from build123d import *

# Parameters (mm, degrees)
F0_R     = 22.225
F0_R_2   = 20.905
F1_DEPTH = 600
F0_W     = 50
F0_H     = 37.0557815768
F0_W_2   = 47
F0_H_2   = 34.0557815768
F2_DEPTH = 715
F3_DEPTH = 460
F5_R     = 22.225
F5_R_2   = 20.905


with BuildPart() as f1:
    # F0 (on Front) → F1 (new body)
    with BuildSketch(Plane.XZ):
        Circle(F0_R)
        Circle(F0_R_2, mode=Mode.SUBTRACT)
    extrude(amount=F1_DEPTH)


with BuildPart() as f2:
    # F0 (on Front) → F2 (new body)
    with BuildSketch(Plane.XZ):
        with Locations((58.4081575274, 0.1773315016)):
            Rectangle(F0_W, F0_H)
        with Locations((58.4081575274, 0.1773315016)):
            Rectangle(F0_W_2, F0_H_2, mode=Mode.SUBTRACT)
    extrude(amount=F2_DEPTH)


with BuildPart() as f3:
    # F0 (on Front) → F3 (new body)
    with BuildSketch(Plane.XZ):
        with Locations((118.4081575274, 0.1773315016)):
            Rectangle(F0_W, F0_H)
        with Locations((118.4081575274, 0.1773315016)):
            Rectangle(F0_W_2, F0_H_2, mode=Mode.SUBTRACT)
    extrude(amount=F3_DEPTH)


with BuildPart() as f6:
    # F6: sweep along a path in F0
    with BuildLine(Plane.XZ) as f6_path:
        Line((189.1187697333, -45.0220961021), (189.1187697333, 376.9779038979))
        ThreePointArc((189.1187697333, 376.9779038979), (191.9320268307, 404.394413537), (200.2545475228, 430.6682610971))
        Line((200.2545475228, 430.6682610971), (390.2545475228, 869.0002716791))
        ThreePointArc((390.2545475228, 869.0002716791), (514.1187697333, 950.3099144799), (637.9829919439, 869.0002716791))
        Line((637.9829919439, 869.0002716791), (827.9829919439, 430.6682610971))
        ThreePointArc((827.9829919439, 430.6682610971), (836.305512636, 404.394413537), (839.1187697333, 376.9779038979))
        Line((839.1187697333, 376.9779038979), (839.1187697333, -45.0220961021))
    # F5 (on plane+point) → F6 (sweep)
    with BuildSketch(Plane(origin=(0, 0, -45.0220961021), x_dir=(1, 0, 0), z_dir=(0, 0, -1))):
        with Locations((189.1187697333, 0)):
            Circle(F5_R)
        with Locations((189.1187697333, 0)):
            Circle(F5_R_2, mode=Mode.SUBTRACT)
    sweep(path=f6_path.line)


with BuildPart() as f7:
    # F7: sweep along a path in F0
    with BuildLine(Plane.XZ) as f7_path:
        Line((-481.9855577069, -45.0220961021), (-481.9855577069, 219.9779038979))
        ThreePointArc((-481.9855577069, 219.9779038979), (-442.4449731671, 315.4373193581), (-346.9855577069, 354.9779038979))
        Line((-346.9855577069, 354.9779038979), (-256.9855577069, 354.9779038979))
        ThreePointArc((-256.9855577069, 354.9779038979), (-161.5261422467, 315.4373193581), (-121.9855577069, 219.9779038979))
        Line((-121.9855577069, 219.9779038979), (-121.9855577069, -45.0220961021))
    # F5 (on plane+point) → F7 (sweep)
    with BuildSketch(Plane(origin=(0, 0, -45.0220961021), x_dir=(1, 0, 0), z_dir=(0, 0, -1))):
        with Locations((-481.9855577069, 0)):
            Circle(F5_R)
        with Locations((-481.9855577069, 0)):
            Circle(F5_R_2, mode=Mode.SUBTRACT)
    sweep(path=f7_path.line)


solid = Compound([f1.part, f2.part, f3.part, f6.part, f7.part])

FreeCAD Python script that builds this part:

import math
import FreeCAD as App
import Part
import Sketcher
Q = App.Units.Quantity

doc = App.newDocument("Part")
body = doc.addObject("PartDesign::Body", "Body")

# Sketch on XZ plane
sketch1 = body.newObject("Sketcher::SketchObject", "Sketch")
sketch1.AttachmentSupport = (doc.getObject("XZ_Plane"), [""])
sketch1.MapMode = "FlatFace"
sketch1.addGeometry([
    Part.Circle(App.Vector(0, 0, 0), App.Vector(0, 0, 1), 22),
    Part.Circle(App.Vector(0, 0, 0), App.Vector(0, 0, 1), 21),
], False)
sketch1.addConstraint([
    Sketcher.Constraint("Coincident", 0, 3, -1, 1),
    Sketcher.Constraint("Coincident", 1, 3, -1, 1),
    Sketcher.Constraint("Diameter", 0, Q("44.45 mm")),
    Sketcher.Constraint("Diameter", 1, Q("41.81 mm")),
])
pad1 = body.newObject("PartDesign::Pad", "Pad")
pad1.Profile = sketch1
pad1.Length = 600
body2 = doc.addObject("PartDesign::Body", "Body001")

# Sketch on XZ plane
sketch2 = body2.newObject("Sketcher::SketchObject", "Sketch001")
sketch2.AttachmentSupport = (doc.getObject("XZ_Plane001"), [""])
sketch2.MapMode = "FlatFace"
sketch2.addGeometry([
    Part.LineSegment(App.Vector(33, 19, 0), App.Vector(33, -18, 0)),  # 0
    Part.LineSegment(App.Vector(33, -18, 0), App.Vector(83, -18, 0)),  # 1
    Part.LineSegment(App.Vector(83, -18, 0), App.Vector(83, 19, 0)),  # 2
    Part.LineSegment(App.Vector(83, 19, 0), App.Vector(33, 19, 0)),  # 3
    Part.LineSegment(App.Vector(82, -17, 0), App.Vector(35, -17, 0)),  # 4
    Part.LineSegment(App.Vector(35, -17, 0), App.Vector(35, 17, 0)),  # 5
    Part.LineSegment(App.Vector(35, 17, 0), App.Vector(82, 17, 0)),  # 6
    Part.LineSegment(App.Vector(82, 17, 0), App.Vector(82, -17, 0)),  # 7
], False)
sketch2.addConstraint([
    Sketcher.Constraint("Coincident", 0, 2, 1, 1),
    Sketcher.Constraint("Coincident", 1, 2, 2, 1),
    Sketcher.Constraint("Coincident", 2, 2, 3, 1),
    Sketcher.Constraint("Coincident", 3, 2, 0, 1),
    Sketcher.Constraint("Coincident", 4, 2, 5, 1),
    Sketcher.Constraint("Coincident", 5, 2, 6, 1),
    Sketcher.Constraint("Coincident", 6, 2, 7, 1),
    Sketcher.Constraint("Coincident", 7, 2, 4, 1),
    Sketcher.Constraint("Vertical", 0),
    Sketcher.Constraint("Horizontal", 1),
    Sketcher.Constraint("Vertical", 2),
    Sketcher.Constraint("Horizontal", 3),
    Sketcher.Constraint("Horizontal", 4),
    Sketcher.Constraint("Vertical", 5),
    Sketcher.Constraint("Horizontal", 6),
    Sketcher.Constraint("Vertical", 7),
    Sketcher.Constraint("DistanceX", 1, 1, 1, 2, Q("50 mm")),
    Sketcher.Constraint("DistanceX", 4, 2, 4, 1, Q("47 mm")),
    Sketcher.Constraint("DistanceX", 0, 2, 4, 2, Q("1.5 mm")),
    Sketcher.Constraint("DistanceY", 0, 2, 4, 2, Q("1.5 mm")),
    Sketcher.Constraint("DistanceY", 5, 2, 3, 2, Q("1.5 mm")),
    Sketcher.Constraint("DistanceY", 0, 2, 0, 1, Q("37.055782 mm")),
    Sketcher.Constraint("DistanceY", 0, 2, -1, 1, Q("18.350559 mm")),
    Sketcher.Constraint("DistanceX", -1, 1, 0, 2, Q("33.408158 mm")),
])
pad2 = body2.newObject("PartDesign::Pad", "Pad001")
pad2.Profile = sketch2
pad2.Length = 715
body3 = doc.addObject("PartDesign::Body", "Body002")

# Sketch on XZ plane
sketch3 = body3.newObject("Sketcher::SketchObject", "Sketch002")
sketch3.AttachmentSupport = (doc.getObject("XZ_Plane002"), [""])
sketch3.MapMode = "FlatFace"
sketch3.addGeometry([
    Part.LineSegment(App.Vector(93, 19, 0), App.Vector(93, -18, 0)),  # 0
    Part.LineSegment(App.Vector(93, -18, 0), App.Vector(143, -18, 0)),  # 1
    Part.LineSegment(App.Vector(143, -18, 0), App.Vector(143, 19, 0)),  # 2
    Part.LineSegment(App.Vector(143, 19, 0), App.Vector(93, 19, 0)),  # 3
    Part.LineSegment(App.Vector(142, -17, 0), App.Vector(95, -17, 0)),  # 4
    Part.LineSegment(App.Vector(95, -17, 0), App.Vector(95, 17, 0)),  # 5
    Part.LineSegment(App.Vector(95, 17, 0), App.Vector(142, 17, 0)),  # 6
    Part.LineSegment(App.Vector(142, 17, 0), App.Vector(142, -17, 0)),  # 7
], False)
sketch3.addConstraint([
    Sketcher.Constraint("Coincident", 0, 2, 1, 1),
    Sketcher.Constraint("Coincident", 1, 2, 2, 1),
    Sketcher.Constraint("Coincident", 2, 2, 3, 1),
    Sketcher.Constraint("Coincident", 3, 2, 0, 1),
    Sketcher.Constraint("Coincident", 4, 2, 5, 1),
    Sketcher.Constraint("Coincident", 5, 2, 6, 1),
    Sketcher.Constraint("Coincident", 6, 2, 7, 1),
    Sketcher.Constraint("Coincident", 7, 2, 4, 1),
    Sketcher.Constraint("Vertical", 0),
    Sketcher.Constraint("Horizontal", 1),
    Sketcher.Constraint("Vertical", 2),
    Sketcher.Constraint("Horizontal", 3),
    Sketcher.Constraint("Horizontal", 4),
    Sketcher.Constraint("Vertical", 5),
    Sketcher.Constraint("Horizontal", 6),
    Sketcher.Constraint("Vertical", 7),
    Sketcher.Constraint("DistanceX", 1, 1, 1, 2, Q("50 mm")),
    Sketcher.Constraint("DistanceX", 4, 2, 4, 1, Q("47 mm")),
    Sketcher.Constraint("DistanceX", 0, 2, 4, 2, Q("1.5 mm")),
    Sketcher.Constraint("DistanceY", 0, 2, 4, 2, Q("1.5 mm")),
    Sketcher.Constraint("DistanceY", 5, 2, 3, 2, Q("1.5 mm")),
    Sketcher.Constraint("DistanceY", 0, 2, 0, 1, Q("37.055782 mm")),
    Sketcher.Constraint("DistanceY", 0, 2, -1, 1, Q("18.350559 mm")),
    Sketcher.Constraint("DistanceX", -1, 1, 0, 2, Q("93.408158 mm")),
])
pad3 = body3.newObject("PartDesign::Pad", "Pad002")
pad3.Profile = sketch3
pad3.Length = 460
body4 = doc.addObject("PartDesign::Body", "Body003")

# Sketch on XY plane
sketch4 = body4.newObject("Sketcher::SketchObject", "Sketch003")
sketch4.AttachmentSupport = (doc.getObject("XY_Plane003"), [""])
sketch4.MapMode = "FlatFace"
sketch4.AttachmentOffset = App.Placement(App.Vector(0, 0, -45.022096), App.Rotation())
sketch4.addGeometry([
    Part.Circle(App.Vector(189, 0, 0), App.Vector(0, 0, 1), 22),
    Part.Circle(App.Vector(189, 0, 0), App.Vector(0, 0, 1), 21),
], False)
sketch4.addConstraint([
    Sketcher.Constraint("Coincident", 1, 3, 0, 3),
    Sketcher.Constraint("PointOnObject", 0, 3, -1),
    Sketcher.Constraint("Diameter", 0, Q("44.45 mm")),
    Sketcher.Constraint("Diameter", 1, Q("41.81 mm")),
    Sketcher.Constraint("DistanceX", -1, 1, 0, 3, Q("189.11877 mm")),
])

# Sketch on XZ plane
sketch5 = body4.newObject("Sketcher::SketchObject", "Sketch004")
sketch5.AttachmentSupport = (doc.getObject("XZ_Plane003"), [""])
sketch5.MapMode = "FlatFace"
sketch5.addGeometry([
    Part.LineSegment(App.Vector(189, -45, 0), App.Vector(189, 377, 0)),  # 0
    Part.ArcOfCircle(Part.Circle(App.Vector(324, 377, 0), App.Vector(0, 0, 1), 135), math.radians(157), math.radians(180)),  # 1
    Part.LineSegment(App.Vector(200, 431, 0), App.Vector(390, 869, 0)),  # 2
    Part.ArcOfCircle(Part.Circle(App.Vector(514, 815, 0), App.Vector(0, 0, 1), 135), math.radians(23), math.radians(157)),  # 3
    Part.LineSegment(App.Vector(638, 869, 0), App.Vector(828, 431, 0)),  # 4
    Part.ArcOfCircle(Part.Circle(App.Vector(704, 377, 0), App.Vector(0, 0, 1), 135), math.radians(0), math.radians(23)),  # 5
    Part.LineSegment(App.Vector(839, 377, 0), App.Vector(839, -45, 0)),  # 6
], False)
sketch5.addConstraint([
    Sketcher.Constraint("Tangent", 0, 2, 1, 2),
    Sketcher.Constraint("Tangent", 1, 1, 2, 1),
    Sketcher.Constraint("Tangent", 2, 2, 3, 2),
    Sketcher.Constraint("Tangent", 3, 1, 4, 1),
    Sketcher.Constraint("Tangent", 4, 2, 5, 2),
    Sketcher.Constraint("Tangent", 5, 1, 6, 1),
    Sketcher.Constraint("Vertical", 0),
    Sketcher.Constraint("Vertical", 6),
    Sketcher.Constraint("Equal", 1, 3),
    Sketcher.Constraint("Equal", 3, 5),
    Sketcher.Constraint("Horizontal", 1, 3, 5, 3),
    Sketcher.Constraint("Horizontal", 2, 2, 3, 1),
    Sketcher.Constraint("Horizontal", 0, 1, 6, 2),
    Sketcher.Constraint("Radius", 1, Q("135 mm")),
    Sketcher.Constraint("DistanceY", 0, 1, 0, 2, Q("422 mm")),
    Sketcher.Constraint("DistanceX", 1, 3, 3, 3, Q("190 mm")),
    Sketcher.Constraint("DistanceX", -1, 1, 1, 3, Q("324.11877 mm")),
    Sketcher.Constraint("DistanceY", -1, 1, 1, 1, Q("430.668261 mm")),
    Sketcher.Constraint("DistanceY", -1, 1, 2, 2, Q("869.000272 mm")),
])
doc.recompute()

additivepipe = body4.newObject("PartDesign::AdditivePipe", "AdditivePipe")
additivepipe.Profile = sketch4
additivepipe.Spine = (sketch5, ["Edge1", "Edge2", "Edge3", "Edge4", "Edge5", "Edge6", "Edge7"])
body5 = doc.addObject("PartDesign::Body", "Body004")

# Sketch on XY plane
sketch6 = body5.newObject("Sketcher::SketchObject", "Sketch005")
sketch6.AttachmentSupport = (doc.getObject("XY_Plane004"), [""])
sketch6.MapMode = "FlatFace"
sketch6.AttachmentOffset = App.Placement(App.Vector(0, 0, -45.022096), App.Rotation())
sketch6.addGeometry([
    Part.Circle(App.Vector(-482, 0, 0), App.Vector(0, 0, 1), 22),
    Part.Circle(App.Vector(-482, 0, 0), App.Vector(0, 0, 1), 21),
], False)
sketch6.addConstraint([
    Sketcher.Constraint("Coincident", 1, 3, 0, 3),
    Sketcher.Constraint("PointOnObject", 0, 3, -1),
    Sketcher.Constraint("Diameter", 0, Q("44.45 mm")),
    Sketcher.Constraint("Diameter", 1, Q("41.81 mm")),
    Sketcher.Constraint("DistanceX", 0, 3, -1, 1, Q("481.985558 mm")),
])

# Sketch on XZ plane
sketch7 = body5.newObject("Sketcher::SketchObject", "Sketch006")
sketch7.AttachmentSupport = (doc.getObject("XZ_Plane004"), [""])
sketch7.MapMode = "FlatFace"
sketch7.addGeometry([
    Part.LineSegment(App.Vector(-482, -45, 0), App.Vector(-482, 220, 0)),  # 0
    Part.ArcOfCircle(Part.Circle(App.Vector(-347, 220, 0), App.Vector(0, 0, 1), 135), math.radians(90), math.radians(180)),  # 1
    Part.LineSegment(App.Vector(-347, 355, 0), App.Vector(-257, 355, 0)),  # 2
    Part.ArcOfCircle(Part.Circle(App.Vector(-257, 220, 0), App.Vector(0, 0, 1), 135), math.radians(0), math.radians(90)),  # 3
    Part.LineSegment(App.Vector(-122, 220, 0), App.Vector(-122, -45, 0)),  # 4
], False)
sketch7.addConstraint([
    Sketcher.Constraint("Tangent", 0, 2, 1, 2),
    Sketcher.Constraint("Tangent", 1, 1, 2, 1),
    Sketcher.Constraint("Tangent", 2, 2, 3, 2),
    Sketcher.Constraint("Tangent", 3, 1, 4, 1),
    Sketcher.Constraint("Vertical", 0),
    Sketcher.Constraint("Horizontal", 2),
    Sketcher.Constraint("Vertical", 4),
    Sketcher.Constraint("Equal", 1, 3),
    Sketcher.Constraint("Horizontal", 0, 1, 4, 2),
    Sketcher.Constraint("Radius", 1, Q("135 mm")),
    Sketcher.Constraint("DistanceX", 2, 1, 2, 2, Q("90 mm")),
    Sketcher.Constraint("DistanceY", 0, 1, 0, 2, Q("265 mm")),
    Sketcher.Constraint("DistanceX", 1, 3, -1, 1, Q("346.985558 mm")),
    Sketcher.Constraint("DistanceY", -1, 1, 1, 3, Q("219.977904 mm")),
])
doc.recompute()

additivepipe2 = body5.newObject("PartDesign::AdditivePipe", "AdditivePipe001")
additivepipe2.Profile = sketch6
additivepipe2.Spine = (sketch7, ["Edge1", "Edge2", "Edge3", "Edge4", "Edge5"])

doc.recompute()
